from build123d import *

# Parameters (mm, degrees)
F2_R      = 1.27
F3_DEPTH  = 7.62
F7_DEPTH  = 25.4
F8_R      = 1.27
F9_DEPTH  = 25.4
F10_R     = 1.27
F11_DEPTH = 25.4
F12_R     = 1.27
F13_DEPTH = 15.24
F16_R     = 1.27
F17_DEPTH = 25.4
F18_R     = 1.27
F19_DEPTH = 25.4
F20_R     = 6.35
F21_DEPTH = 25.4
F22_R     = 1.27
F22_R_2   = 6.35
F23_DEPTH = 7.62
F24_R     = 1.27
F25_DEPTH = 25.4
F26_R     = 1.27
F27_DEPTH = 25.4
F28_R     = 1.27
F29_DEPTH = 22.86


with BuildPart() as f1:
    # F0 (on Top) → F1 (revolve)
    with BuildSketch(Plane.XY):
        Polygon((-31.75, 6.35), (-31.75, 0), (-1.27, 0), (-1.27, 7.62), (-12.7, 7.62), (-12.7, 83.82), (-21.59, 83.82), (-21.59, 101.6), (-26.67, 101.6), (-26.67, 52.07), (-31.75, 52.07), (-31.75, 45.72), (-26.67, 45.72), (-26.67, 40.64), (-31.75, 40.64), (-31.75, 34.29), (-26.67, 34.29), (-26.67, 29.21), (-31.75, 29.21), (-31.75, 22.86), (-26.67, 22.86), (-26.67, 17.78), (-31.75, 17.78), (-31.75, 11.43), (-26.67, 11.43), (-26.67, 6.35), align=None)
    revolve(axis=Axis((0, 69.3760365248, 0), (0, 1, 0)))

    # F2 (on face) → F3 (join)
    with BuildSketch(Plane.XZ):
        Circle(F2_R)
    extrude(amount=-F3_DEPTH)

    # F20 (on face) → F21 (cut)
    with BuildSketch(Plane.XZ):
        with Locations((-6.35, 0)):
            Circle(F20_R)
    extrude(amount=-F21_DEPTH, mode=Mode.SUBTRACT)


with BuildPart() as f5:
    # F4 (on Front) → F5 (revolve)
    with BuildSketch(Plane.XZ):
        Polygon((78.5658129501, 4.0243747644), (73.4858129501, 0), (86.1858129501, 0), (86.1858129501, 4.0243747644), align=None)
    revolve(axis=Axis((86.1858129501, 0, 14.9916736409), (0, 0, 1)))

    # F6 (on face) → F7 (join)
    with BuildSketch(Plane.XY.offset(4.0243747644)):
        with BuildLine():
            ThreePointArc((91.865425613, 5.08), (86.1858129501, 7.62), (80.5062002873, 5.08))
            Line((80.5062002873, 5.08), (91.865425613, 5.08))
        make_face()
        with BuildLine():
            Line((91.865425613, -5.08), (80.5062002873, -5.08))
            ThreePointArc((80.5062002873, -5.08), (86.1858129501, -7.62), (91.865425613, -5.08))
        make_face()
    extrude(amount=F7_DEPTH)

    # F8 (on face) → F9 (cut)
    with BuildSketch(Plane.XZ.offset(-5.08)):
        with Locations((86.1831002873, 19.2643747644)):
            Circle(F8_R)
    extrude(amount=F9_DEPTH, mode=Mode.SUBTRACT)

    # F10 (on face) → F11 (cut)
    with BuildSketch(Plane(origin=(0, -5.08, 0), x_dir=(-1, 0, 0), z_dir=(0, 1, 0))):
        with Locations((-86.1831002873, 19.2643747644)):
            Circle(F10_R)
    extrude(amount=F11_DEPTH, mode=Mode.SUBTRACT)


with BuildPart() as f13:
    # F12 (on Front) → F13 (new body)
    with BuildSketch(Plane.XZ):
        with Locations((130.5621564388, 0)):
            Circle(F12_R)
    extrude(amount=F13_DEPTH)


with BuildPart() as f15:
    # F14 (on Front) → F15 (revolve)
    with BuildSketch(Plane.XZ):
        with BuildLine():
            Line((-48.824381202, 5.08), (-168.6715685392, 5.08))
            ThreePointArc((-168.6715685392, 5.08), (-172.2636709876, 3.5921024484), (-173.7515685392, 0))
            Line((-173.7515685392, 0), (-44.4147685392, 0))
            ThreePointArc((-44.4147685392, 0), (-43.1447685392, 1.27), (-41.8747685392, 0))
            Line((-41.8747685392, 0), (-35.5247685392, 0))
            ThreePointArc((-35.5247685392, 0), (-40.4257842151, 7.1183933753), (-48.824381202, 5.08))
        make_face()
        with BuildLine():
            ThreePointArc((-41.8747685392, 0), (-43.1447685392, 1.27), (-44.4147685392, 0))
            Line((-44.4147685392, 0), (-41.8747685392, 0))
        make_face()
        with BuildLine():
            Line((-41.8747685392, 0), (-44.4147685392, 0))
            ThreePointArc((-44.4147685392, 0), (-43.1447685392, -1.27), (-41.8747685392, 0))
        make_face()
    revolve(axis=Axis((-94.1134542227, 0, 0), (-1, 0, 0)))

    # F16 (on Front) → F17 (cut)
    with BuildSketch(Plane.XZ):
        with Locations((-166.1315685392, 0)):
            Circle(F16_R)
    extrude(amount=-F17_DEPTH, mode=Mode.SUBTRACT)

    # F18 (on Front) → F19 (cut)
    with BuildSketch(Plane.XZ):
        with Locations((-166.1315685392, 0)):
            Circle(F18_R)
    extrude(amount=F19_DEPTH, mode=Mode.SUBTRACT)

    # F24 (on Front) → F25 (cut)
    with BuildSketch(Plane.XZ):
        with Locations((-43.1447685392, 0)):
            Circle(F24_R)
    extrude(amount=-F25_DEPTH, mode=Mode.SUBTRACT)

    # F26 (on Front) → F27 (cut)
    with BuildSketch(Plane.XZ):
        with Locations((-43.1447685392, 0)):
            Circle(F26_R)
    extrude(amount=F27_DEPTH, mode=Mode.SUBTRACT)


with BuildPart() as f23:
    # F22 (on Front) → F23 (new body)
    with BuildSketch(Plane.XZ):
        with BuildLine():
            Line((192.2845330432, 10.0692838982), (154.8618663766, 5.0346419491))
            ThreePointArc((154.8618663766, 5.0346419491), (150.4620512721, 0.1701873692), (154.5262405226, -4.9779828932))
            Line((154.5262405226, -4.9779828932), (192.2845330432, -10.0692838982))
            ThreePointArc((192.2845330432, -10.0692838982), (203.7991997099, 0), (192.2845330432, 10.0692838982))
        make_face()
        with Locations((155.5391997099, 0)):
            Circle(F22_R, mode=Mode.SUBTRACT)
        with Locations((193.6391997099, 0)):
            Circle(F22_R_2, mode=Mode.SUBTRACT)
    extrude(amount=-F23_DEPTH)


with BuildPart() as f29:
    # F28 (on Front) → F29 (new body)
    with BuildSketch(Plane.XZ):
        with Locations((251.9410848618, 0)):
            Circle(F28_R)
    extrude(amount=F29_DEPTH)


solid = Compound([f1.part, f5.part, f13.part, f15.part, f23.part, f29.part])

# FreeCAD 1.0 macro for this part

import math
import FreeCAD as App
import Part
import Sketcher
Q = App.Units.Quantity

doc = App.newDocument("Part")
body = doc.addObject("PartDesign::Body", "Body")

# Sketch on XY plane
sketch1 = body.newObject("Sketcher::SketchObject", "Sketch")
sketch1.AttachmentSupport = (doc.getObject("XY_Plane"), [""])
sketch1.MapMode = "FlatFace"
sketch1.addGeometry(Part.LineSegment(App.Vector(-31.75, 6.35, 0), App.Vector(-31.75, 0, 0)), False)
sketch1.addGeometry(Part.LineSegment(App.Vector(-31.75, 0, 0), App.Vector(-1.27, 0, 0)), False)
sketch1.addGeometry(Part.LineSegment(App.Vector(-1.27, 0, 0), App.Vector(-1.27, 7.62, 0)), False)
sketch1.addGeometry(Part.LineSegment(App.Vector(-1.27, 7.62, 0), App.Vector(-12.7, 7.62, 0)), False)
sketch1.addGeometry(Part.LineSegment(App.Vector(-12.7, 7.62, 0), App.Vector(-12.7, 83.82, 0)), False)
sketch1.addGeometry(Part.LineSegment(App.Vector(-12.7, 83.82, 0), App.Vector(-21.59, 83.82, 0)), False)
sketch1.addGeometry(Part.LineSegment(App.Vector(-21.59, 83.82, 0), App.Vector(-21.59, 101.6, 0)), False)
sketch1.addGeometry(Part.LineSegment(App.Vector(-21.59, 101.6, 0), App.Vector(-26.67, 101.6, 0)), False)
sketch1.addGeometry(Part.LineSegment(App.Vector(-26.67, 101.6, 0), App.Vector(-26.67, 52.07, 0)), False)
sketch1.addGeometry(Part.LineSegment(App.Vector(-26.67, 52.07, 0), App.Vector(-31.75, 52.07, 0)), False)
sketch1.addGeometry(Part.LineSegment(App.Vector(-31.75, 52.07, 0), App.Vector(-31.75, 45.72, 0)), False)
sketch1.addGeometry(Part.LineSegment(App.Vector(-31.75, 45.72, 0), App.Vector(-26.67, 45.72, 0)), False)
sketch1.addGeometry(Part.LineSegment(App.Vector(-26.67, 45.72, 0), App.Vector(-26.67, 40.64, 0)), False)
sketch1.addGeometry(Part.LineSegment(App.Vector(-26.67, 40.64, 0), App.Vector(-31.75, 40.64, 0)), False)
sketch1.addGeometry(Part.LineSegment(App.Vector(-31.75, 40.64, 0), App.Vector(-31.75, 34.29, 0)), False)
sketch1.addGeometry(Part.LineSegment(App.Vector(-31.75, 34.29, 0), App.Vector(-26.67, 34.29, 0)), False)
sketch1.addGeometry(Part.LineSegment(App.Vector(-26.67, 34.29, 0), App.Vector(-26.67, 29.21, 0)), False)
sketch1.addGeometry(Part.LineSegment(App.Vector(-26.67, 29.21, 0), App.Vector(-31.75, 29.21, 0)), False)
sketch1.addGeometry(Part.LineSegment(App.Vector(-31.75, 29.21, 0), App.Vector(-31.75, 22.86, 0)), False)
sketch1.addGeometry(Part.LineSegment(App.Vector(-31.75, 22.86, 0), App.Vector(-26.67, 22.86, 0)), False)
sketch1.addGeometry(Part.LineSegment(App.Vector(-26.67, 22.86, 0), App.Vector(-26.67, 17.78, 0)), False)
sketch1.addGeometry(Part.LineSegment(App.Vector(-26.67, 17.78, 0), App.Vector(-31.75, 17.78, 0)), False)
sketch1.addGeometry(Part.LineSegment(App.Vector(-31.75, 17.78, 0), App.Vector(-31.75, 11.43, 0)), False)
sketch1.addGeometry(Part.LineSegment(App.Vector(-31.75, 11.43, 0), App.Vector(-26.67, 11.43, 0)), False)
sketch1.addGeometry(Part.LineSegment(App.Vector(-26.67, 11.43, 0), App.Vector(-26.67, 6.35, 0)), False)
sketch1.addGeometry(Part.LineSegment(App.Vector(-26.67, 6.35, 0), App.Vector(-31.75, 6.35, 0)), False)
sketch1.addConstraint(Sketcher.Constraint("Coincident", 0, 2, 1, 1))
sketch1.addConstraint(Sketcher.Constraint("Coincident", 1, 2, 2, 1))
sketch1.addConstraint(Sketcher.Constraint("Coincident", 2, 2, 3, 1))
sketch1.addConstraint(Sketcher.Constraint("Coincident", 3, 2, 4, 1))
sketch1.addConstraint(Sketcher.Constraint("Coincident", 4, 2, 5, 1))
sketch1.addConstraint(Sketcher.Constraint("Coincident", 5, 2, 6, 1))
sketch1.addConstraint(Sketcher.Constraint("Coincident", 6, 2, 7, 1))
sketch1.addConstraint(Sketcher.Constraint("Coincident", 7, 2, 8, 1))
sketch1.addConstraint(Sketcher.Constraint("Coincident", 8, 2, 9, 1))
sketch1.addConstraint(Sketcher.Constraint("Coincident", 9, 2, 10, 1))
sketch1.addConstraint(Sketcher.Constraint("Coincident", 10, 2, 11, 1))
sketch1.addConstraint(Sketcher.Constraint("Coincident", 11, 2, 12, 1))
sketch1.addConstraint(Sketcher.Constraint("Coincident", 12, 2, 13, 1))
sketch1.addConstraint(Sketcher.Constraint("Coincident", 13, 2, 14, 1))
sketch1.addConstraint(Sketcher.Constraint("Coincident", 14, 2, 15, 1))
sketch1.addConstraint(Sketcher.Constraint("Coincident", 15, 2, 16, 1))
sketch1.addConstraint(Sketcher.Constraint("Coincident", 16, 2, 17, 1))
sketch1.addConstraint(Sketcher.Constraint("Coincident", 17, 2, 18, 1))
sketch1.addConstraint(Sketcher.Constraint("Coincident", 18, 2, 19, 1))
sketch1.addConstraint(Sketcher.Constraint("Coincident", 19, 2, 20, 1))
sketch1.addConstraint(Sketcher.Constraint("Coincident", 20, 2, 21, 1))
sketch1.addConstraint(Sketcher.Constraint("Coincident", 21, 2, 22, 1))
sketch1.addConstraint(Sketcher.Constraint("Coincident", 22, 2, 23, 1))
sketch1.addConstraint(Sketcher.Constraint("Coincident", 23, 2, 24, 1))
sketch1.addConstraint(Sketcher.Constraint("Coincident", 24, 2, 25, 1))
sketch1.addConstraint(Sketcher.Constraint("Coincident", 25, 2, 0, 1))
sketch1.addConstraint(Sketcher.Constraint("Vertical", 0))
sketch1.addConstraint(Sketcher.Constraint("Horizontal", 1))
sketch1.addConstraint(Sketcher.Constraint("Vertical", 2))
sketch1.addConstraint(Sketcher.Constraint("Horizontal", 3))
sketch1.addConstraint(Sketcher.Constraint("Vertical", 4))
sketch1.addConstraint(Sketcher.Constraint("Horizontal", 5))
sketch1.addConstraint(Sketcher.Constraint("Vertical", 6))
sketch1.addConstraint(Sketcher.Constraint("Horizontal", 7))
sketch1.addConstraint(Sketcher.Constraint("Vertical", 8))
sketch1.addConstraint(Sketcher.Constraint("Horizontal", 9))
sketch1.addConstraint(Sketcher.Constraint("Vertical", 10))
sketch1.addConstraint(Sketcher.Constraint("Horizontal", 11))
sketch1.addConstraint(Sketcher.Constraint("Vertical", 12))
sketch1.addConstraint(Sketcher.Constraint("Horizontal", 13))
sketch1.addConstraint(Sketcher.Constraint("Vertical", 14))
sketch1.addConstraint(Sketcher.Constraint("Horizontal", 15))
sketch1.addConstraint(Sketcher.Constraint("Vertical", 16))
sketch1.addConstraint(Sketcher.Constraint("Horizontal", 17))
sketch1.addConstraint(Sketcher.Constraint("Vertical", 18))
sketch1.addConstraint(Sketcher.Constraint("Horizontal", 19))
sketch1.addConstraint(Sketcher.Constraint("Vertical", 20))
sketch1.addConstraint(Sketcher.Constraint("Horizontal", 21))
sketch1.addConstraint(Sketcher.Constraint("Vertical", 22))
sketch1.addConstraint(Sketcher.Constraint("Horizontal", 23))
sketch1.addConstraint(Sketcher.Constraint("Vertical", 24))
sketch1.addConstraint(Sketcher.Constraint("Horizontal", 25))
sketch1.addConstraint(Sketcher.Constraint("PointOnObject", 0, 2, -1))
sketch1.addConstraint(Sketcher.Constraint("Vertical", 0, 2, 9, 2))
sketch1.addConstraint(Sketcher.Constraint("Vertical", 8, 2, 11, 2))
sketch1.addConstraint(Sketcher.Constraint("Vertical", 10, 2, 13, 2))
sketch1.addConstraint(Sketcher.Constraint("Vertical", 12, 2, 15, 2))
sketch1.addConstraint(Sketcher.Constraint("Vertical", 14, 2, 17, 2))
sketch1.addConstraint(Sketcher.Constraint("Vertical", 16, 2, 19, 2))
sketch1.addConstraint(Sketcher.Constraint("Vertical", 18, 2, 21, 2))
sketch1.addConstraint(Sketcher.Constraint("Vertical", 20, 2, 23, 2))
sketch1.addConstraint(Sketcher.Constraint("Equal", 7, 9))
sketch1.addConstraint(Sketcher.Constraint("Equal", 0, 10))
sketch1.addConstraint(Sketcher.Constraint("Equal", 25, 12))
sketch1.addConstraint(Sketcher.Constraint("Equal", 10, 14))
sketch1.addConstraint(Sketcher.Constraint("Equal", 12, 16))
sketch1.addConstraint(Sketcher.Constraint("Equal", 14, 18))
sketch1.addConstraint(Sketcher.Constraint("Equal", 16, 20))
sketch1.addConstraint(Sketcher.Constraint("Equal", 18, 22))
sketch1.addConstraint(Sketcher.Constraint("Equal", 20, 24))
sketch1.addConstraint(Sketcher.Constraint("DistanceY", 4, 1, 4, 2, Q("3 in")))
sketch1.addConstraint(Sketcher.Constraint("DistanceX", 1, 1, 1, 2, Q("1.2 in")))
sketch1.addConstraint(Sketcher.Constraint("DistanceX", 7, 2, 7, 1, Q("0.2 in")))
sketch1.addConstraint(Sketcher.Constraint("DistanceY", 2, 1, 2, 2, Q("0.3 in")))
sketch1.addConstraint(Sketcher.Constraint("DistanceY", 6, 1, 6, 2, Q("0.7 in")))
sketch1.addConstraint(Sketcher.Constraint("DistanceX", 3, 2, 3, 1, Q("0.45 in")))
sketch1.addConstraint(Sketcher.Constraint("DistanceY", 0, 2, 0, 1, Q("0.25 in")))
sketch1.addConstraint(Sketcher.Constraint("DistanceX", 3, 2, -1, 1, Q("0.5 in")))
revolution = body.newObject("PartDesign::Revolution", "Revolution")
revolution.Profile = sketch1
revolution.ReferenceAxis = (sketch1, ["V_Axis"])
revolution.Angle = 360

# Sketch on XZ plane
sketch2 = body.newObject("Sketcher::SketchObject", "Sketch001")
sketch2.AttachmentSupport = (doc.getObject("XZ_Plane"), [""])
sketch2.MapMode = "FlatFace"
sketch2.addGeometry(Part.Circle(App.Vector(0, 0, 0), App.Vector(0, 0, 1), 1.27), False)
sketch2.addConstraint(Sketcher.Constraint("Coincident", 0, 3, -1, 1))
sketch2.addConstraint(Sketcher.Constraint("Diameter", 0, Q("0.1 in")))
pad1 = body.newObject("PartDesign::Pad", "Pad")
pad1.Profile = sketch2
pad1.Length = Q("0.3 in")
pad1.Reversed = True

# Sketch on XZ plane
sketch3 = body.newObject("Sketcher::SketchObject", "Sketch002")
sketch3.AttachmentSupport = (doc.getObject("XZ_Plane"), [""])
sketch3.MapMode = "FlatFace"
sketch3.addGeometry(Part.Circle(App.Vector(-6.35, 0, 0), App.Vector(0, 0, 1), 6.35), False)
sketch3.addConstraint(Sketcher.Constraint("PointOnObject", 0, 3, -1))
sketch3.addConstraint(Sketcher.Constraint("Diameter", 0, Q("0.5 in")))
sketch3.addConstraint(Sketcher.Constraint("DistanceX", 0, 3, -1, 1, Q("0.25 in")))
pocket1 = body.newObject("PartDesign::Pocket", "Pocket")
pocket1.Profile = sketch3
pocket1.Length = Q("1 in")
body2 = doc.addObject("PartDesign::Body", "Body001")

# Sketch on XZ plane
sketch4 = body2.newObject("Sketcher::SketchObject", "Sketch003")
sketch4.AttachmentSupport = (doc.getObject("XZ_Plane001"), [""])
sketch4.MapMode = "FlatFace"
sketch4.addGeometry(Part.LineSegment(App.Vector(78.565813, 4.024375, 0), App.Vector(73.485813, 0, 0)), False)
sketch4.addGeometry(Part.LineSegment(App.Vector(73.485813, 0, 0), App.Vector(86.185813, 0, 0)), False)
sketch4.addGeometry(Part.LineSegment(App.Vector(86.185813, 0, 0), App.Vector(86.185813, 4.024375, 0)), False)
sketch4.addGeometry(Part.LineSegment(App.Vector(86.185813, 4.024375, 0), App.Vector(78.565813, 4.024375, 0)), False)
sketch4.addGeometry(Part.LineSegment(App.Vector(86.185813, 0, 0), App.Vector(86.185813, 4.024375, 0)), True)  # axis
sketch4.addConstraint(Sketcher.Constraint("Coincident", 0, 2, 1, 1))
sketch4.addConstraint(Sketcher.Constraint("Coincident", 1, 2, 2, 1))
sketch4.addConstraint(Sketcher.Constraint("Coincident", 2, 2, 3, 1))
sketch4.addConstraint(Sketcher.Constraint("Coincident", 3, 2, 0, 1))
sketch4.addConstraint(Sketcher.Constraint("Horizontal", 1))
sketch4.addConstraint(Sketcher.Constraint("Vertical", 2))
sketch4.addConstraint(Sketcher.Constraint("Horizontal", 3))
sketch4.addConstraint(Sketcher.Constraint("Vertical", 4))
sketch4.addConstraint(Sketcher.Constraint("Coincident", 4, 1, 1, 2))
sketch4.addConstraint(Sketcher.Constraint("PointOnObject", 0, 2, -1))
sketch4.addConstraint(Sketcher.Constraint("Horizontal", 3, 2, 4, 2))
sketch4.addConstraint(Sketcher.Constraint("DistanceX", 1, 1, 1, 2, Q("0.5 in")))
sketch4.addConstraint(Sketcher.Constraint("DistanceX", 3, 2, 3, 1, Q("0.3 in")))
sketch4.addConstraint(Sketcher.Constraint("DistanceY", 2, 1, 2, 2, 4.024375))
sketch4.addConstraint(Sketcher.Constraint("DistanceX", -1, 1, 0, 2, 73.485813))
revolution2 = body2.newObject("PartDesign::Revolution", "Revolution001")
revolution2.Profile = sketch4
revolution2.ReferenceAxis = (sketch4, ["Axis0"])
revolution2.Angle = 360

# Sketch on XY plane
sketch5 = body2.newObject("Sketcher::SketchObject", "Sketch004")
sketch5.AttachmentSupport = (doc.getObject("XY_Plane001"), [""])
sketch5.MapMode = "FlatFace"
sketch5.AttachmentOffset = App.Placement(App.Vector(0, 0, 4.024375), App.Rotation())
sketch5.addGeometry(Part.ArcOfCircle(Part.Circle(App.Vector(86.185813, 0, 0), App.Vector(0, 0, 1), 7.62), math.radians(41.810315), math.radians(138.189685)), False)
sketch5.addGeometry(Part.LineSegment(App.Vector(80.5062, 5.08, 0), App.Vector(91.865426, 5.08, 0)), False)
sketch5.addGeometry(Part.LineSegment(App.Vector(91.865426, -5.08, 0), App.Vector(80.5062, -5.08, 0)), False)
sketch5.addGeometry(Part.ArcOfCircle(Part.Circle(App.Vector(86.185813, 0, 0), App.Vector(0, 0, 1), 7.62), math.radians(-138.189685), math.radians(-41.810315)), False)
sketch5.addConstraint(Sketcher.Constraint("Coincident", 0, 1, 1, 2))
sketch5.addConstraint(Sketcher.Constraint("Coincident", 1, 1, 0, 2))
sketch5.addConstraint(Sketcher.Constraint("Coincident", 2, 1, 3, 2))
sketch5.addConstraint(Sketcher.Constraint("Coincident", 3, 1, 2, 2))
sketch5.addConstraint(Sketcher.Constraint("Horizontal", 1))
sketch5.addConstraint(Sketcher.Constraint("Horizontal", 2))
sketch5.addConstraint(Sketcher.Constraint("Coincident", 3, 3, 0, 3))
sketch5.addConstraint(Sketcher.Constraint("Equal", 0, 3))
sketch5.addConstraint(Sketcher.Constraint("Symmetric", 0, 1, 2, 1, -1))
sketch5.addConstraint(Sketcher.Constraint("Radius", 0, Q("0.3 in")))
sketch5.addConstraint(Sketcher.Constraint("DistanceY", -1, 1, 0, 1, Q("0.2 in")))
sketch5.addConstraint(Sketcher.Constraint("DistanceX", -1, 1, 1, 1, 80.5062))
pad2 = body2.newObject("PartDesign::Pad", "Pad001")
pad2.Profile = sketch5
pad2.Length = Q("1 in")

# Sketch on XZ plane
sketch6 = body2.newObject("Sketcher::SketchObject", "Sketch005")
sketch6.AttachmentSupport = (doc.getObject("XZ_Plane001"), [""])
sketch6.MapMode = "FlatFace"
sketch6.AttachmentOffset = App.Placement(App.Vector(0, 0, -0.2 * 25.4), App.Rotation())
sketch6.addGeometry(Part.Circle(App.Vector(86.1831, 19.264375, 0), App.Vector(0, 0, 1), 1.27), False)
sketch6.addConstraint(Sketcher.Constraint("Diameter", 0, Q("0.1 in")))
sketch6.addConstraint(Sketcher.Constraint("DistanceX", -1, 1, 0, 3, 86.1831))
sketch6.addConstraint(Sketcher.Constraint("DistanceY", -1, 1, 0, 3, 19.264375))
pocket2 = body2.newObject("PartDesign::Pocket", "Pocket001")
pocket2.Profile = sketch6
pocket2.Length = Q("1 in")
pocket2.Reversed = True

# Sketch on XZ plane
sketch7 = body2.newObject("Sketcher::SketchObject", "Sketch006")
sketch7.AttachmentSupport = (doc.getObject("XZ_Plane001"), [""])
sketch7.MapMode = "FlatFace"
sketch7.AttachmentOffset = App.Placement(App.Vector(0, 0, 0.2 * 25.4), App.Rotation())
sketch7.addGeometry(Part.Circle(App.Vector(86.1831, 19.264375, 0), App.Vector(0, 0, 1), 1.27), False)
sketch7.addConstraint(Sketcher.Constraint("Diameter", 0, Q("0.1 in")))
sketch7.addConstraint(Sketcher.Constraint("DistanceX", -1, 1, 0, 3, 86.1831))
sketch7.addConstraint(Sketcher.Constraint("DistanceY", -1, 1, 0, 3, 19.264375))
pocket3 = body2.newObject("PartDesign::Pocket", "Pocket002")
pocket3.Profile = sketch7
pocket3.Length = Q("1 in")
body3 = doc.addObject("PartDesign::Body", "Body002")

# Sketch on XZ plane
sketch8 = body3.newObject("Sketcher::SketchObject", "Sketch007")
sketch8.AttachmentSupport = (doc.getObject("XZ_Plane002"), [""])
sketch8.MapMode = "FlatFace"
sketch8.addGeometry(Part.Circle(App.Vector(130.562156, 0, 0), App.Vector(0, 0, 1), 1.27), False)
sketch8.addConstraint(Sketcher.Constraint("PointOnObject", 0, 3, -1))
sketch8.addConstraint(Sketcher.Constraint("Diameter", 0, Q("0.1 in")))
sketch8.addConstraint(Sketcher.Constraint("DistanceX", -1, 1, 0, 3, 130.562156))
pad3 = body3.newObject("PartDesign::Pad", "Pad002")
pad3.Profile = sketch8
pad3.Length = Q("0.6 in")
body4 = doc.addObject("PartDesign::Body", "Body003")

# Sketch on XZ plane
sketch9 = body4.newObject("Sketcher::SketchObject", "Sketch008")
sketch9.AttachmentSupport = (doc.getObject("XZ_Plane003"), [""])
sketch9.MapMode = "FlatFace"
sketch9.addGeometry(Part.LineSegment(App.Vector(-48.824381, 5.08, 0), App.Vector(-168.671569, 5.08, 0)), False)
sketch9.addGeometry(Part.ArcOfCircle(Part.Circle(App.Vector(-168.671569, 0, 0), App.Vector(0, 0, 1), 5.08), math.radians(90), math.radians(180)), False)
sketch9.addGeometry(Part.LineSegment(App.Vector(-173.751569, 0, 0), App.Vector(-44.414769, 0, 0)), False)
sketch9.addGeometry(Part.ArcOfCircle(Part.Circle(App.Vector(-43.144769, 0, 0), App.Vector(0, 0, 1), 1.27), math.radians(180), math.radians(360)), False)
sketch9.addGeometry(Part.LineSegment(App.Vector(-41.874769, 0, 0), App.Vector(-35.524769, 0, 0)), False)
sketch9.addGeometry(Part.ArcOfCircle(Part.Circle(App.Vector(-43.144769, 0, 0), App.Vector(0, 0, 1), 7.62), math.radians(0), math.radians(138.189685)), False)
sketch9.addConstraint(Sketcher.Constraint("Tangent", 0, 2, 1, 1))
sketch9.addConstraint(Sketcher.Constraint("Coincident", 1, 2, 2, 1))
sketch9.addConstraint(Sketcher.Constraint("Coincident", 2, 2, 3, 1))
sketch9.addConstraint(Sketcher.Constraint("Coincident", 3, 2, 4, 1))
sketch9.addConstraint(Sketcher.Constraint("Coincident", 4, 2, 5, 1))
sketch9.addConstraint(Sketcher.Constraint("Coincident", 5, 2, 0, 1))
sketch9.addConstraint(Sketcher.Constraint("Horizontal", 0))
sketch9.addConstraint(Sketcher.Constraint("Horizontal", 2))
sketch9.addConstraint(Sketcher.Constraint("Horizontal", 4))
sketch9.addConstraint(Sketcher.Constraint("Coincident", 5, 3, 3, 3))
sketch9.addConstraint(Sketcher.Constraint("PointOnObject", 1, 3, -1))
sketch9.addConstraint(Sketcher.Constraint("PointOnObject", 3, 3, -1))
sketch9.addConstraint(Sketcher.Constraint("PointOnObject", 1, 2, -1))
sketch9.addConstraint(Sketcher.Constraint("PointOnObject", 3, 2, -1))
sketch9.addConstraint(Sketcher.Constraint("Radius", 1, Q("0.2 in")))
sketch9.addConstraint(Sketcher.Constraint("Radius", 5, Q("0.3 in")))
sketch9.addConstraint(Sketcher.Constraint("Radius", 3, Q("0.05 in")))
sketch9.addConstraint(Sketcher.Constraint("DistanceX", 2, 1, 2, 2, Q("5.092 in")))
sketch9.addConstraint(Sketcher.Constraint("DistanceX", 1, 3, -1, 1, 168.671569))
revolution3 = body4.newObject("PartDesign::Revolution", "Revolution002")
revolution3.Profile = sketch9
revolution3.ReferenceAxis = (sketch9, ["H_Axis"])
revolution3.Angle = 360

# Sketch on XZ plane
sketch10 = body4.newObject("Sketcher::SketchObject", "Sketch009")
sketch10.AttachmentSupport = (doc.getObject("XZ_Plane003"), [""])
sketch10.MapMode = "FlatFace"
sketch10.addGeometry(Part.Circle(App.Vector(-166.131569, 0, 0), App.Vector(0, 0, 1), 1.27), False)
sketch10.addConstraint(Sketcher.Constraint("PointOnObject", 0, 3, -1))
sketch10.addConstraint(Sketcher.Constraint("Diameter", 0, Q("0.1 in")))
sketch10.addConstraint(Sketcher.Constraint("DistanceX", 0, 3, -1, 1, 166.131569))
pocket4 = body4.newObject("PartDesign::Pocket", "Pocket003")
pocket4.Profile = sketch10
pocket4.Length = Q("1 in")

# Sketch on XZ plane
sketch11 = body4.newObject("Sketcher::SketchObject", "Sketch010")
sketch11.AttachmentSupport = (doc.getObject("XZ_Plane003"), [""])
sketch11.MapMode = "FlatFace"
sketch11.addGeometry(Part.Circle(App.Vector(-166.131569, 0, 0), App.Vector(0, 0, 1), 1.27), False)
sketch11.addConstraint(Sketcher.Constraint("PointOnObject", 0, 3, -1))
sketch11.addConstraint(Sketcher.Constraint("Diameter", 0, Q("0.1 in")))
sketch11.addConstraint(Sketcher.Constraint("DistanceX", 0, 3, -1, 1, 166.131569))
pocket5 = body4.newObject("PartDesign::Pocket", "Pocket004")
pocket5.Profile = sketch11
pocket5.Length = Q("1 in")
pocket5.Reversed = True

# Sketch on XZ plane
sketch12 = body4.newObject("Sketcher::SketchObject", "Sketch011")
sketch12.AttachmentSupport = (doc.getObject("XZ_Plane003"), [""])
sketch12.MapMode = "FlatFace"
sketch12.addGeometry(Part.Circle(App.Vector(-43.144769, 0, 0), App.Vector(0, 0, 1), 1.27), False)
sketch12.addConstraint(Sketcher.Constraint("PointOnObject", 0, 3, -1))
sketch12.addConstraint(Sketcher.Constraint("Diameter", 0, Q("0.1 in")))
sketch12.addConstraint(Sketcher.Constraint("DistanceX", 0, 3, -1, 1, 43.144769))
pocket6 = body4.newObject("PartDesign::Pocket", "Pocket005")
pocket6.Profile = sketch12
pocket6.Length = Q("1 in")

# Sketch on XZ plane
sketch13 = body4.newObject("Sketcher::SketchObject", "Sketch012")
sketch13.AttachmentSupport = (doc.getObject("XZ_Plane003"), [""])
sketch13.MapMode = "FlatFace"
sketch13.addGeometry(Part.Circle(App.Vector(-43.144769, 0, 0), App.Vector(0, 0, 1), 1.27), False)
sketch13.addConstraint(Sketcher.Constraint("PointOnObject", 0, 3, -1))
sketch13.addConstraint(Sketcher.Constraint("Diameter", 0, Q("0.1 in")))
sketch13.addConstraint(Sketcher.Constraint("DistanceX", 0, 3, -1, 1, 43.144769))
pocket7 = body4.newObject("PartDesign::Pocket", "Pocket006")
pocket7.Profile = sketch13
pocket7.Length = Q("1 in")
pocket7.Reversed = True
body5 = doc.addObject("PartDesign::Body", "Body004")

# Sketch on XZ plane
sketch14 = body5.newObject("Sketcher::SketchObject", "Sketch013")
sketch14.AttachmentSupport = (doc.getObject("XZ_Plane004"), [""])
sketch14.MapMode = "FlatFace"
sketch14.addGeometry(Part.LineSegment(App.Vector(192.284533, 10.069284, 0), App.Vector(154.861866, 5.034642, 0)), False)
sketch14.addGeometry(Part.ArcOfCircle(Part.Circle(App.Vector(155.5392, 0, 0), App.Vector(0, 0, 1), 5.08), math.radians(97.662256), math.radians(258.498042)), False)
sketch14.addGeometry(Part.LineSegment(App.Vector(154.526241, -4.977983, 0), App.Vector(192.284533, -10.069284, 0)), False)
sketch14.addGeometry(Part.ArcOfCircle(Part.Circle(App.Vector(193.6392, 0, 0), App.Vector(0, 0, 1), 10.16), math.radians(-97.662256), math.radians(97.662256)), False)
sketch14.addGeometry(Part.Circle(App.Vector(155.5392, 0, 0), App.Vector(0, 0, 1), 1.27), False)
sketch14.addGeometry(Part.Circle(App.Vector(193.6392, 0, 0), App.Vector(0, 0, 1), 6.35), False)
sketch14.addConstraint(Sketcher.Constraint("Tangent", 0, 2, 1, 1))
sketch14.addConstraint(Sketcher.Constraint("Coincident", 1, 2, 2, 1))
sketch14.addConstraint(Sketcher.Constraint("Coincident", 2, 2, 3, 1))
sketch14.addConstraint(Sketcher.Constraint("Tangent", 3, 2, 0, 1))
sketch14.addConstraint(Sketcher.Constraint("Coincident", 4, 3, 1, 3))
sketch14.addConstraint(Sketcher.Constraint("Coincident", 5, 3, 3, 3))
sketch14.addConstraint(Sketcher.Constraint("Symmetric", 2, 2, 3, 2, -1))
sketch14.addConstraint(Sketcher.Constraint("PointOnObject", 1, 3, -1))
sketch14.addConstraint(Sketcher.Constraint("Diameter", 4, Q("0.1 in")))
sketch14.addConstraint(Sketcher.Constraint("Diameter", 5, Q("0.5 in")))
sketch14.addConstraint(Sketcher.Constraint("Radius", 1, Q("0.2 in")))
sketch14.addConstraint(Sketcher.Constraint("Radius", 3, Q("0.4 in")))
sketch14.addConstraint(Sketcher.Constraint("Distance", 2, Q("1.5 in")))
sketch14.addConstraint(Sketcher.Constraint("DistanceX", 1, 3, 3, 3, Q("1.5 in")))
sketch14.addConstraint(Sketcher.Constraint("DistanceX", -1, 1, 1, 3, 155.5392))
pad4 = body5.newObject("PartDesign::Pad", "Pad003")
pad4.Profile = sketch14
pad4.Length = Q("0.3 in")
pad4.Reversed = True
body6 = doc.addObject("PartDesign::Body", "Body005")

# Sketch on XZ plane
sketch15 = body6.newObject("Sketcher::SketchObject", "Sketch014")
sketch15.AttachmentSupport = (doc.getObject("XZ_Plane005"), [""])
sketch15.MapMode = "FlatFace"
sketch15.addGeometry(Part.Circle(App.Vector(251.941085, 0, 0), App.Vector(0, 0, 1), 1.27), False)
sketch15.addConstraint(Sketcher.Constraint("PointOnObject", 0, 3, -1))
sketch15.addConstraint(Sketcher.Constraint("Diameter", 0, Q("0.1 in")))
sketch15.addConstraint(Sketcher.Constraint("DistanceX", -1, 1, 0, 3, 251.941085))
pad5 = body6.newObject("PartDesign::Pad", "Pad004")
pad5.Profile = sketch15
pad5.Length = Q("0.9 in")

doc.recompute()
